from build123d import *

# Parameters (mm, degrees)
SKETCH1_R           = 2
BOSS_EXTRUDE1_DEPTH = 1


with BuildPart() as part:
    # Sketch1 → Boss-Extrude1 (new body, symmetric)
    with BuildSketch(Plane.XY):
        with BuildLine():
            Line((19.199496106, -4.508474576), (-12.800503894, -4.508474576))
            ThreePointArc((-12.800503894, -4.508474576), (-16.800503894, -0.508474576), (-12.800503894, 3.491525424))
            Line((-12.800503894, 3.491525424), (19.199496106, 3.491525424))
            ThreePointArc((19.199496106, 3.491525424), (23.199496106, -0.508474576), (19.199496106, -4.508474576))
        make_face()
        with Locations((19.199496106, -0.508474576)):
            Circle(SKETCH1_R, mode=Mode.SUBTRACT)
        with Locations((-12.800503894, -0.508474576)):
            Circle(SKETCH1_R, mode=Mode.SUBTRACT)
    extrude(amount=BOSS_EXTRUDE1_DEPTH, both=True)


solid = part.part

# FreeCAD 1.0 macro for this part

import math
import FreeCAD as App
import Part
import Sketcher

V = App.Vector
Q = App.Units.Quantity

doc = App.newDocument("Part")
body = doc.addObject("PartDesign::Body", "Body")

# Sketch on XY plane
sketch1 = body.newObject("Sketcher::SketchObject", "Sketch")
sketch1.AttachmentSupport = (doc.getObject("XY_Plane"), [""])
sketch1.MapMode = "FlatFace"
sketch1.addGeometry([
    Part.LineSegment(V(-12.8, -4.5, 0), V(19.2, -4.5, 0)),  # 0
    Part.ArcOfCircle(Part.Circle(V(19.2, -0.5, 0), V(0, 0, 1), 4), math.radians(-90), math.radians(90)),  # 1
    Part.LineSegment(V(19.2, 3.5, 0), V(-12.8, 3.5, 0)),  # 2
    Part.ArcOfCircle(Part.Circle(V(-12.8, -0.5, 0), V(0, 0, 1), 4), math.radians(90), math.radians(270)),  # 3
    Part.Circle(V(19.2, -0.5, 0), V(0, 0, 1), 2),  # 4
    Part.Circle(V(-12.8, -0.5, 0), V(0, 0, 1), 2),  # 5
], False)
sketch1.addConstraint([
    Sketcher.Constraint("Tangent", 0, 2, 1, 1),
    Sketcher.Constraint("Tangent", 1, 2, 2, 1),
    Sketcher.Constraint("Tangent", 2, 2, 3, 1),
    Sketcher.Constraint("Tangent", 3, 2, 0, 1),
    Sketcher.Constraint("Horizontal", 0),
    Sketcher.Constraint("Horizontal", 2),
    Sketcher.Constraint("Coincident", 4, 3, 1, 3),
    Sketcher.Constraint("Coincident", 5, 3, 3, 3),
    Sketcher.Constraint("Equal", 4, 5),
    Sketcher.Constraint("Diameter", 4, Q("4 mm")),
    Sketcher.Constraint("Radius", 1, Q("4 mm")),
    Sketcher.Constraint("DistanceX", 0, 1, 0, 2, Q("32 mm")),
    Sketcher.Constraint("DistanceX", -1, 1, 1, 3, Q("19.199496 mm")),
    Sketcher.Constraint("DistanceY", 1, 3, -1, 1, Q("0.508475 mm")),
])
pad1 = body.newObject("PartDesign::Pad", "Pad")
pad1.Profile = sketch1
pad1.Length = 2
pad1.Midplane = True

doc.recompute()
